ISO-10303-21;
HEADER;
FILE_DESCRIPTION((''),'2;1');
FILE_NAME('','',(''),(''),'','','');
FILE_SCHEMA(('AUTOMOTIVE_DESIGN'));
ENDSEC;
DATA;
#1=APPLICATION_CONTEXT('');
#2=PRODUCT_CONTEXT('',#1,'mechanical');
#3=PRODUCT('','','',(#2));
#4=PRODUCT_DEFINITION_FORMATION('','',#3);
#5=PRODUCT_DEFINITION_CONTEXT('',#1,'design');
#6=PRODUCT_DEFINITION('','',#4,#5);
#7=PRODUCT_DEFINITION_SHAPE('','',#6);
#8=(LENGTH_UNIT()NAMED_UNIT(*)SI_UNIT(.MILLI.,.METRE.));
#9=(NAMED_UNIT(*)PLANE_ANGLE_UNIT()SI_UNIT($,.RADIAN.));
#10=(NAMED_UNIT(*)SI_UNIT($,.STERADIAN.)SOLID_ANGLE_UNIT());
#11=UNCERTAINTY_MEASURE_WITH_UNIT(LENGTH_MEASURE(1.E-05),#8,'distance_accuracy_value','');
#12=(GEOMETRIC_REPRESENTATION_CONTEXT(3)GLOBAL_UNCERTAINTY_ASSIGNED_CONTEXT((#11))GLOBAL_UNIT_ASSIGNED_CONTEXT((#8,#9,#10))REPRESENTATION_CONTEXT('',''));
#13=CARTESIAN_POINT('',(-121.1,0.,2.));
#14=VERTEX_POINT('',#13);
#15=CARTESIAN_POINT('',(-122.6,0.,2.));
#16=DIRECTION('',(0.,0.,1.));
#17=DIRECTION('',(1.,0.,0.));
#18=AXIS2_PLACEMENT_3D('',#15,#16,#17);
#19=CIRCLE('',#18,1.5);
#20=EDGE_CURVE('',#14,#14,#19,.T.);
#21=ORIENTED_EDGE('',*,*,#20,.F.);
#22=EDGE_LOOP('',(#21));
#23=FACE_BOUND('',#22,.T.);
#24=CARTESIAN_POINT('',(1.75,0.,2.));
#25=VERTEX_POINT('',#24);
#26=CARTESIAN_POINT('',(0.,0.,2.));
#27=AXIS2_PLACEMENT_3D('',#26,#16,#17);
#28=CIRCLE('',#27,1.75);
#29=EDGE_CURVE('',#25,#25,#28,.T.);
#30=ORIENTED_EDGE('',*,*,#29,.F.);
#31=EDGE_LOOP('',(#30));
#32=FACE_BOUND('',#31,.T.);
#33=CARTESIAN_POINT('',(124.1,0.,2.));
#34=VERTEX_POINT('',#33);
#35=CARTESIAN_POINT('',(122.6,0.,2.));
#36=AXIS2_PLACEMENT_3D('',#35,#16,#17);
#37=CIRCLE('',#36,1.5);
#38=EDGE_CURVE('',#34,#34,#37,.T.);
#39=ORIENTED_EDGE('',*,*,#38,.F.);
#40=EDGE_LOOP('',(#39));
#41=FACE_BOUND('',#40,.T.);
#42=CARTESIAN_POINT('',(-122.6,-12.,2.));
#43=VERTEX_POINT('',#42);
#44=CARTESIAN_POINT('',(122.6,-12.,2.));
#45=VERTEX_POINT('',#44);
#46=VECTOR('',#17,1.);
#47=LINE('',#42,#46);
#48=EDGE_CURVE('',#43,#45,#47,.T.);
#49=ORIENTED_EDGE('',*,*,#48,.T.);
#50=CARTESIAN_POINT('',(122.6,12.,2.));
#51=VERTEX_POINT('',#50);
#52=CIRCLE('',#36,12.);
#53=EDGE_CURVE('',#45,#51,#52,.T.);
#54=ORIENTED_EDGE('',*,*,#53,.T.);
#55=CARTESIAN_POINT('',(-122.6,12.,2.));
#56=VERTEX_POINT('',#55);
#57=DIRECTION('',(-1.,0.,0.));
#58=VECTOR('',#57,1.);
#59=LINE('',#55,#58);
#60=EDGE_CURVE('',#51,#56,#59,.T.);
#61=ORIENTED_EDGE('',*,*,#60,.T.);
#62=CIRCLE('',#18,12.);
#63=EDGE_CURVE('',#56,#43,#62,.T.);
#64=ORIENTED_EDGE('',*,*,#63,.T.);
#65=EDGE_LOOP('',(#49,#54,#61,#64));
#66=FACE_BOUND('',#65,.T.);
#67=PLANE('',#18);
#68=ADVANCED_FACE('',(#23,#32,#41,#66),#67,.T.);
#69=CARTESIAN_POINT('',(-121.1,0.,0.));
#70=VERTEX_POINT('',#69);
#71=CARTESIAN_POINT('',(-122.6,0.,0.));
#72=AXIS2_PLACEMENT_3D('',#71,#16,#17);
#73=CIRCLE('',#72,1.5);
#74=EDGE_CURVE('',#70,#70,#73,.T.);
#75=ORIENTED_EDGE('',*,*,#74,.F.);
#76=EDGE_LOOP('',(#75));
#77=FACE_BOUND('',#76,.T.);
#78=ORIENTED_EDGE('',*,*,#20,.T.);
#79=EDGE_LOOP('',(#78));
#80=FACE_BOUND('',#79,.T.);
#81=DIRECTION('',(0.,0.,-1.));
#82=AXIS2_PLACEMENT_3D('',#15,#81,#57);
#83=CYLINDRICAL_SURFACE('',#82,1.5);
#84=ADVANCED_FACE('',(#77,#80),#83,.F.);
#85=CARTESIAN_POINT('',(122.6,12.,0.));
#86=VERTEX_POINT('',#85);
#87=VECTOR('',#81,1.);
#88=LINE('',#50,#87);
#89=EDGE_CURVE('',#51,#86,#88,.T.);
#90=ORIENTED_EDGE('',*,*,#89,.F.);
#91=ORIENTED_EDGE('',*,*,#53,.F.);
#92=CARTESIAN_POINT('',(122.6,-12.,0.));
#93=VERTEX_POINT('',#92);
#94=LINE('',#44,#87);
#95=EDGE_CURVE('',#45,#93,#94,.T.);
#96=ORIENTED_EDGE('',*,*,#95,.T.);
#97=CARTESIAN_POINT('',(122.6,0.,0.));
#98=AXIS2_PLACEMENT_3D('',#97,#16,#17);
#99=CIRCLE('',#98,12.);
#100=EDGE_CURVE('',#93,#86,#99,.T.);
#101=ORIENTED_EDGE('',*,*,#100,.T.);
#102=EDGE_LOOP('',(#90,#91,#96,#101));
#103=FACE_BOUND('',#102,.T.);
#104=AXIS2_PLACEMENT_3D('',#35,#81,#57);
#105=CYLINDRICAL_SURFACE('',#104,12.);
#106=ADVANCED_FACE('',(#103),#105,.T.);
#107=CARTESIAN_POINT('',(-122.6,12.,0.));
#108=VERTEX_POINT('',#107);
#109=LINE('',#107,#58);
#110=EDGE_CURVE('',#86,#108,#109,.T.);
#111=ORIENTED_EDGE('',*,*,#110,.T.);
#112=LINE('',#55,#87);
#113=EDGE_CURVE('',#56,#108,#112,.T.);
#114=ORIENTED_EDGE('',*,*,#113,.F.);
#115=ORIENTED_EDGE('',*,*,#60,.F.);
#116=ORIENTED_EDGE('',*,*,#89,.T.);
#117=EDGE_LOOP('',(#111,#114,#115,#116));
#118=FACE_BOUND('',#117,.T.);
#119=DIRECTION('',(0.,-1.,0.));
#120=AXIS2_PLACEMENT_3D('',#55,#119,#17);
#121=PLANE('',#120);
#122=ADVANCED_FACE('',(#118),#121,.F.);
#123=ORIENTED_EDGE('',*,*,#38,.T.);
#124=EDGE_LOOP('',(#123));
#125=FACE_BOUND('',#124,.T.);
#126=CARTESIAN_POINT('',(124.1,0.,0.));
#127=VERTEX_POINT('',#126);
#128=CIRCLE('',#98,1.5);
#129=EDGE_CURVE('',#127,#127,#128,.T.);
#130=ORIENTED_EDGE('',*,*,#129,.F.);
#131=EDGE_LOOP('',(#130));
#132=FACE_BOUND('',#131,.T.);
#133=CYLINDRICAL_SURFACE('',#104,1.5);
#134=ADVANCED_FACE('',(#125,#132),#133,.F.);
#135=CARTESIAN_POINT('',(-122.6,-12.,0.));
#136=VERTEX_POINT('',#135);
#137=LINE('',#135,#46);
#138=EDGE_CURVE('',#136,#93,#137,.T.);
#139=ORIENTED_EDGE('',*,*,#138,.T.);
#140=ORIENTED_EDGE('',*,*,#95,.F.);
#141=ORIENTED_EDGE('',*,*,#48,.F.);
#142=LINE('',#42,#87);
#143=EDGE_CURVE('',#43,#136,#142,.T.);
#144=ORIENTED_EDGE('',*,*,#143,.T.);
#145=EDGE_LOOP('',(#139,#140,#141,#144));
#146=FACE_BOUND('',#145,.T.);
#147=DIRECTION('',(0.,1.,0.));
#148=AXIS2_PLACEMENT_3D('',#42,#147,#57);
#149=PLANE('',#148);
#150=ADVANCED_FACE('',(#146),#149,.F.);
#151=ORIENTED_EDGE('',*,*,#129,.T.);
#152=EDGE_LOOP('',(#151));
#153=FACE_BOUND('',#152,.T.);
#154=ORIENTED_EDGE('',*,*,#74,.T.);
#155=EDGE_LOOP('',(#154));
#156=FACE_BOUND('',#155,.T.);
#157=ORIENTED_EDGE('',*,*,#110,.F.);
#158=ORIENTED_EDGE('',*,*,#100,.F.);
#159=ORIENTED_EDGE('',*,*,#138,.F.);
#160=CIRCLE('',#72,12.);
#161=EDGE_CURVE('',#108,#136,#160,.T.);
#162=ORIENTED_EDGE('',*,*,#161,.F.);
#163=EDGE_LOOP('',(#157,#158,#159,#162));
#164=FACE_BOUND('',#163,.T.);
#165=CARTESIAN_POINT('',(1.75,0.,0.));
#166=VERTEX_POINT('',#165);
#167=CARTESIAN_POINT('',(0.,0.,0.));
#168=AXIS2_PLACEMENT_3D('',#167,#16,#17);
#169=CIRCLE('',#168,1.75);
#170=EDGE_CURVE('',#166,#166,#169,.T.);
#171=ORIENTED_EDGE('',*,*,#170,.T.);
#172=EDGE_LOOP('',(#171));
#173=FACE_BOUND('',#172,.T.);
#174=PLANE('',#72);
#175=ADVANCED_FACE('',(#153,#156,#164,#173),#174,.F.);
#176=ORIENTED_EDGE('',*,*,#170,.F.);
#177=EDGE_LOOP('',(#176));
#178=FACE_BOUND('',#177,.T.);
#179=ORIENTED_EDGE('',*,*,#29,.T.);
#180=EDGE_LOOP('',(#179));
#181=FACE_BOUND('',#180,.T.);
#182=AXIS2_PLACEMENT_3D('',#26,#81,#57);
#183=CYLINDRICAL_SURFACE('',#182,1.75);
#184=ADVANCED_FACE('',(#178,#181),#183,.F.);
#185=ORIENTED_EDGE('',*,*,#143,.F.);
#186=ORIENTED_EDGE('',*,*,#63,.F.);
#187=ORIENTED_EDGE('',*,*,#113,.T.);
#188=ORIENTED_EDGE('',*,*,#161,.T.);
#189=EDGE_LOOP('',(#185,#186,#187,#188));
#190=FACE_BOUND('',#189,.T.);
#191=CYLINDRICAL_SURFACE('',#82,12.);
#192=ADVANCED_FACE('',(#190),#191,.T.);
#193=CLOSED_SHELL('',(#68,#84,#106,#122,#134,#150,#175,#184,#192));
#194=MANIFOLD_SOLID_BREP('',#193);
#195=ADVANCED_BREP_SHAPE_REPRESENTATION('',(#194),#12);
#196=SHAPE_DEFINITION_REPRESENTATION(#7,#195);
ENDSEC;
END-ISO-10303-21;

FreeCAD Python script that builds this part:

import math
import FreeCAD as App
import Part
import Sketcher
Q = App.Units.Quantity

doc = App.newDocument("Part")
body = doc.addObject("PartDesign::Body", "Body")

sketch1 = doc.addObject("Sketcher::SketchObject", "Sketch")
body.addObject(sketch1)
sketch1.AttachmentSupport = (doc.XY_Plane, [""])
sketch1.MapMode = "FlatFace"
sketch1.addGeometry(Part.LineSegment(App.Vector(122.6, 12, 0), App.Vector(-122.6, 12, 0)), False)
sketch1.addGeometry(Part.ArcOfCircle(Part.Circle(App.Vector(-122.6, 0, 0), App.Vector(0, 0, 1), 12), math.radians(90), math.radians(270)), False)
sketch1.addGeometry(Part.LineSegment(App.Vector(-122.6, -12, 0), App.Vector(122.6, -12, 0)), False)
sketch1.addGeometry(Part.ArcOfCircle(Part.Circle(App.Vector(122.6, 0, 0), App.Vector(0, 0, 1), 12), math.radians(-90), math.radians(90)), False)
sketch1.addGeometry(Part.Circle(App.Vector(122.6, 0, 0), App.Vector(0, 0, 1), 1.5), False)
sketch1.addGeometry(Part.Circle(App.Vector(0, 0, 0), App.Vector(0, 0, 1), 1.8), False)
sketch1.addGeometry(Part.Circle(App.Vector(-122.6, 0, 0), App.Vector(0, 0, 1), 1.5), False)
sketch1.addConstraint(Sketcher.Constraint("Tangent", 0, 2, 1, 1))
sketch1.addConstraint(Sketcher.Constraint("Tangent", 1, 2, 2, 1))
sketch1.addConstraint(Sketcher.Constraint("Tangent", 2, 2, 3, 1))
sketch1.addConstraint(Sketcher.Constraint("Tangent", 3, 2, 0, 1))
sketch1.addConstraint(Sketcher.Constraint("Horizontal", 0))
sketch1.addConstraint(Sketcher.Constraint("Horizontal", 2))
sketch1.addConstraint(Sketcher.Constraint("Coincident", 5, 3, -1, 1))
sketch1.addConstraint(Sketcher.Constraint("Coincident", 4, 3, 3, 3))
sketch1.addConstraint(Sketcher.Constraint("Coincident", 6, 3, 1, 3))
sketch1.addConstraint(Sketcher.Constraint("Equal", 4, 6))
sketch1.addConstraint(Sketcher.Constraint("Symmetric", 1, 3, 3, 3, -1, 1))
sketch1.addConstraint(Sketcher.Constraint("Diameter", 4, Q("3 mm")))
sketch1.addConstraint(Sketcher.Constraint("Radius", 1, Q("12 mm")))
sketch1.addConstraint(Sketcher.Constraint("Diameter", 5, Q("3.5 mm")))
sketch1.addConstraint(Sketcher.Constraint("DistanceX", 0, 2, 0, 1, Q("245.2 mm")))
pad1 = doc.addObject("PartDesign::Pad", "Pad")
body.addObject(pad1)
pad1.Profile = sketch1
pad1.Length = 2

doc.recompute()
